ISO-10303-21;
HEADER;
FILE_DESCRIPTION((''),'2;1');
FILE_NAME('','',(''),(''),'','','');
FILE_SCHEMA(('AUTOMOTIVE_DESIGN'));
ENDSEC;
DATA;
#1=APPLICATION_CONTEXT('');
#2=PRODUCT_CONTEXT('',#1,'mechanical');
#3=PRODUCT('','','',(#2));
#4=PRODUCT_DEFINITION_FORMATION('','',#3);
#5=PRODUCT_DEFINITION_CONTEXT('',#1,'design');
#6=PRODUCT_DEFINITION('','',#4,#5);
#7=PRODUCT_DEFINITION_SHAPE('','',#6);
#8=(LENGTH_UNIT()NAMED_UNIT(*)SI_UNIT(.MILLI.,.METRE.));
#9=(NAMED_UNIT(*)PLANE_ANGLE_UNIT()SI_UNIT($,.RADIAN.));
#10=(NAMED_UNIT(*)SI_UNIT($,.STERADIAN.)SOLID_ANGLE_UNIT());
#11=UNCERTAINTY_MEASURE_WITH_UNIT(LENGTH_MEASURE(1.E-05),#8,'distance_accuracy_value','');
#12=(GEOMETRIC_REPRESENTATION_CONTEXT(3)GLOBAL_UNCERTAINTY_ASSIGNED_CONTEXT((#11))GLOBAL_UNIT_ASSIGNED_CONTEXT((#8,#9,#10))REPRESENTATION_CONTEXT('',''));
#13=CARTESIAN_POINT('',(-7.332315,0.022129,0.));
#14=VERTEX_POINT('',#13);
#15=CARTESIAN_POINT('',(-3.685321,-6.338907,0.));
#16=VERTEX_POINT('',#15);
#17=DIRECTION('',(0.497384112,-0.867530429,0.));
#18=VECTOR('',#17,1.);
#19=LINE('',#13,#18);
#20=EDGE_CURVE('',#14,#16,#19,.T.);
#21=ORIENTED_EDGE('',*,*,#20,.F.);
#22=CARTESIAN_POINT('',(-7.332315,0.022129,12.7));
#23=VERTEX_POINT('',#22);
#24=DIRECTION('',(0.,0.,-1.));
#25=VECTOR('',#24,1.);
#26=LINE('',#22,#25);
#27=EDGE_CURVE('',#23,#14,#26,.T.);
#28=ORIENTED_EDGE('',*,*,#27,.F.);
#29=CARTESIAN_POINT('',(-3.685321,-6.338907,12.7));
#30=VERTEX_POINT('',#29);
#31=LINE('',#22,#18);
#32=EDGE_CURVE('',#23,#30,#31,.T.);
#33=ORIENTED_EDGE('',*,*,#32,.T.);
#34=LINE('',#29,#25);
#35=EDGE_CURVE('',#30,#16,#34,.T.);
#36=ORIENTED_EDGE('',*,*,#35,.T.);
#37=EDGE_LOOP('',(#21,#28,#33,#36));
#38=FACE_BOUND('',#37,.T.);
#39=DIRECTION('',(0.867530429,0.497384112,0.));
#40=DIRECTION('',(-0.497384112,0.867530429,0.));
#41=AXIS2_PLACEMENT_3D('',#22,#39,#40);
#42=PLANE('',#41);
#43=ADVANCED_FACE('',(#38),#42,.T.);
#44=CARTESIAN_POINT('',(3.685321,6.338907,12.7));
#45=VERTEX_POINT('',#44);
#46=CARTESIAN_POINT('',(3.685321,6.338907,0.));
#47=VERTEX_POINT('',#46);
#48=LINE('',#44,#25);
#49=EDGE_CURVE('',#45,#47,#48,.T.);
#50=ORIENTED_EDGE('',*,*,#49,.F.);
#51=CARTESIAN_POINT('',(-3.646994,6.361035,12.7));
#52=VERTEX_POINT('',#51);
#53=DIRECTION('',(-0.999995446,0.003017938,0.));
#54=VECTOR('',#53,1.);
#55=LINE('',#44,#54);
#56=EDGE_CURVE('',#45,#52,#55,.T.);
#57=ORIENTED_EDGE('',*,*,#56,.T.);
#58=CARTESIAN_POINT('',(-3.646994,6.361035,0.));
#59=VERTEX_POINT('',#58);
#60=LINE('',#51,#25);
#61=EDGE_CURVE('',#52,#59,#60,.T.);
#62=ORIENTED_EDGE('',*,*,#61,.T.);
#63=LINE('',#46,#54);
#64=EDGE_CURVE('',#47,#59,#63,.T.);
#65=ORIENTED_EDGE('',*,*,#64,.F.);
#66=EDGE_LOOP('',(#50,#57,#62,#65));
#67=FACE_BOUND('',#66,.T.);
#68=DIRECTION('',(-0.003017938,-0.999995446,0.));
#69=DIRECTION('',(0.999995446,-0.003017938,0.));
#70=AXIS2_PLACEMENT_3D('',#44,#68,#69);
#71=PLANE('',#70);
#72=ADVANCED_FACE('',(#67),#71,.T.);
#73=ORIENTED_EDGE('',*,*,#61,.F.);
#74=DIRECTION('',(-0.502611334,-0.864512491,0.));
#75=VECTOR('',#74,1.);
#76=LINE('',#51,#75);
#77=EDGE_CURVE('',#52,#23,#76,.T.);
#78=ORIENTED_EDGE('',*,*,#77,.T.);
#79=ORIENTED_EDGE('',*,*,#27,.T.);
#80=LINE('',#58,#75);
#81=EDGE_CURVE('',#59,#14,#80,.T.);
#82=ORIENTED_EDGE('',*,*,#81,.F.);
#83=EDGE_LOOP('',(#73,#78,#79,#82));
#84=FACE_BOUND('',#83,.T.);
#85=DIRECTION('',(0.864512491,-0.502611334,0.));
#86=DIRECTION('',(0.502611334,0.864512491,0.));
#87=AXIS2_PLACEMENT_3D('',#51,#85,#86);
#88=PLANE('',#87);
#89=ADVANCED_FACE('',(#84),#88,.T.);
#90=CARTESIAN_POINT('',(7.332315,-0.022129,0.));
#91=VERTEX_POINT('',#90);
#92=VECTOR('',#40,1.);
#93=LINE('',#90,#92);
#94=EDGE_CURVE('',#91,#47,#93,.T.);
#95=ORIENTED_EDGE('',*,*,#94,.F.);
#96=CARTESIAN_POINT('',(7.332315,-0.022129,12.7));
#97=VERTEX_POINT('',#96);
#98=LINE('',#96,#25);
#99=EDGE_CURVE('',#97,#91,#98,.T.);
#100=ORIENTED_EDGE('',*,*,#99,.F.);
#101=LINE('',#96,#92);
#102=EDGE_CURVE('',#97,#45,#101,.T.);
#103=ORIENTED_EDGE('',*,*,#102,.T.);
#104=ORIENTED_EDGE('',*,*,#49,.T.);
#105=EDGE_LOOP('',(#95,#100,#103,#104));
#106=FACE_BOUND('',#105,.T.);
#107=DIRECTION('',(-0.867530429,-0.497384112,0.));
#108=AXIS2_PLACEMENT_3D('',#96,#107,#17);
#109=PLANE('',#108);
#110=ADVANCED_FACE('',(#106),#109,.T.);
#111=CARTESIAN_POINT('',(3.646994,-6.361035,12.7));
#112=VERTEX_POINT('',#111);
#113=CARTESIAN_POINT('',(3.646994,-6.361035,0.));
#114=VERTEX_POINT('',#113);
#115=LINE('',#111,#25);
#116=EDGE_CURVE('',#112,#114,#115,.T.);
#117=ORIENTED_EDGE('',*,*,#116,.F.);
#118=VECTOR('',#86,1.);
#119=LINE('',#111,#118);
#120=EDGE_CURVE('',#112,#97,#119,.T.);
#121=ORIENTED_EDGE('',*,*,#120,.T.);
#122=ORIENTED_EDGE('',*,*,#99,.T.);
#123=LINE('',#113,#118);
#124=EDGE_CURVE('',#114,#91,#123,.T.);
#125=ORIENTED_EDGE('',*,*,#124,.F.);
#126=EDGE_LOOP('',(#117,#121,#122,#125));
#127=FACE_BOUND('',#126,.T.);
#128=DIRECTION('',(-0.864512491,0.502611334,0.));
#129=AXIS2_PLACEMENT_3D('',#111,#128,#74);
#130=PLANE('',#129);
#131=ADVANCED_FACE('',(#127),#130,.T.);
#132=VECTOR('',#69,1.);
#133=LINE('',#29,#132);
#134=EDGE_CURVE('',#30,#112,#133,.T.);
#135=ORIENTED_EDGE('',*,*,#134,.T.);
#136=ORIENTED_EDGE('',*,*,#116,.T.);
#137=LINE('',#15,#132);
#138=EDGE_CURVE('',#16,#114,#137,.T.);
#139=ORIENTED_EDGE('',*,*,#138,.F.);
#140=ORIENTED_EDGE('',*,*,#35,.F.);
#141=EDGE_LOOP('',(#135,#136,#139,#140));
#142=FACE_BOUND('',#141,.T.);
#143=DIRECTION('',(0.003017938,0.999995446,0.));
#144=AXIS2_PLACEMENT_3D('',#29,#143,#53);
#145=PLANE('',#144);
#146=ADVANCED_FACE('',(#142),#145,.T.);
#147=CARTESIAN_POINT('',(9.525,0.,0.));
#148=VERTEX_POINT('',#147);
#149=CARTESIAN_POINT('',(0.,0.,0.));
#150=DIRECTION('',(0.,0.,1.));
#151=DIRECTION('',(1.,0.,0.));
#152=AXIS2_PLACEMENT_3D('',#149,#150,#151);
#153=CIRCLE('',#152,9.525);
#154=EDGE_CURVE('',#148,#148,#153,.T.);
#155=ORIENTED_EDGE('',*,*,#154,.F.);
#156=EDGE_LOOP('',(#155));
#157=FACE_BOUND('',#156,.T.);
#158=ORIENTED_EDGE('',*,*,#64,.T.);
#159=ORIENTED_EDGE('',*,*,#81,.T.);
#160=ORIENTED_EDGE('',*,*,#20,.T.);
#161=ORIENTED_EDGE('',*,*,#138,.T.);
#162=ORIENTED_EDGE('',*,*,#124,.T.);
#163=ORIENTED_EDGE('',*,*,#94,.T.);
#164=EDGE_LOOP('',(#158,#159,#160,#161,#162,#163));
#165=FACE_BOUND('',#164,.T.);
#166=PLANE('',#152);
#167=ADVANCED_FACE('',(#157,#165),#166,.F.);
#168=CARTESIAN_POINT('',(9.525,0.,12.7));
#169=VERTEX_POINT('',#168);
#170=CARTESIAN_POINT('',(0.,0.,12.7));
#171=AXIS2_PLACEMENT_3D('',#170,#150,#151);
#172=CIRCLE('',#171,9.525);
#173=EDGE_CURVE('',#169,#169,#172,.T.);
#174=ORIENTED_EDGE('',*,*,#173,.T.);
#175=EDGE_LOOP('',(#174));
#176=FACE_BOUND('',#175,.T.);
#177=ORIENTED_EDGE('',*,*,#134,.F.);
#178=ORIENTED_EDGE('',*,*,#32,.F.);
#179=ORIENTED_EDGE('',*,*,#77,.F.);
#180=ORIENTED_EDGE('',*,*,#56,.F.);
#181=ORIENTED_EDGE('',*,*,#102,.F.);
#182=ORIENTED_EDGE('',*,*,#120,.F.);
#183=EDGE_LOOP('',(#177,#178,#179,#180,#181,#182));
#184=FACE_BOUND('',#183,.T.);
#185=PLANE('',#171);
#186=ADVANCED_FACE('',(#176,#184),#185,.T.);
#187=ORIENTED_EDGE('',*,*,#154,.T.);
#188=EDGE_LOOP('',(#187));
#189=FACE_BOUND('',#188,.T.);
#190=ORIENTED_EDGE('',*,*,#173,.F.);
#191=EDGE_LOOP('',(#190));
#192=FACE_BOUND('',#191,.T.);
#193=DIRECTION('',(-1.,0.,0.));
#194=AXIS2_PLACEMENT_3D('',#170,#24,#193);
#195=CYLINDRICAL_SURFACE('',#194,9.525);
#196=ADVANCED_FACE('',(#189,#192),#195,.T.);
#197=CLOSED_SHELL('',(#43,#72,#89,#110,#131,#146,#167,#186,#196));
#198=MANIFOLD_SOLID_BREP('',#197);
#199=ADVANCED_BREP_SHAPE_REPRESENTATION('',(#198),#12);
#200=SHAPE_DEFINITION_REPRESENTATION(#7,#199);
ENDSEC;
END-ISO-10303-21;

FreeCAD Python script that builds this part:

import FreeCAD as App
import Part
import Sketcher
Q = App.Units.Quantity


def add_polygon(sketch, points):
    """Adds a closed chain of lines whose ends are joined by coincident constraints."""
    first, n = sketch.GeometryCount, len(points)
    for a, b in zip(points, points[1:] + points[:1]):
        sketch.addGeometry(Part.LineSegment(App.Vector(*a, 0), App.Vector(*b, 0)), False)
    for i in range(n):
        sketch.addConstraint(Sketcher.Constraint("Coincident", first + i, 2, first + (i + 1) % n, 1))

doc = App.newDocument("Part")
body = doc.addObject("PartDesign::Body", "Body")

# Sketch on XY plane
sketch1 = body.newObject("Sketcher::SketchObject", "Sketch")
sketch1.AttachmentSupport = (doc.getObject("XY_Plane"), [""])
sketch1.MapMode = "FlatFace"
sketch1.addGeometry(Part.Circle(App.Vector(0, 0, 0), App.Vector(0, 0, 1), 9.525), False)  # 0
add_polygon(sketch1, [(7.332315, -0.022129), (3.646994, -6.361035), (-3.685321, -6.338907), (-7.332315, 0.022129), (-3.646994, 6.361035), (3.685321, 6.338907)])  # lines 1-6
sketch1.addConstraint([
    Sketcher.Constraint("Coincident", 0, 3, -1, 1),
    Sketcher.Constraint("Diameter", 0, Q("0.75 in")),
    Sketcher.Constraint("Distance", 1, Q("7.332348 mm")),
    Sketcher.Constraint("Distance", 2, Q("7.332348 mm")),
    Sketcher.Constraint("Distance", 3, Q("7.332348 mm")),
    Sketcher.Constraint("Distance", 4, Q("7.332348 mm")),
    Sketcher.Constraint("Distance", 5, Q("7.332348 mm")),
    Sketcher.Constraint("Distance", 6, Q("7.332348 mm")),
    Sketcher.Constraint("DistanceX", 2, 2, -1, 1, Q("3.685321 mm")),
    Sketcher.Constraint("DistanceY", -1, 1, 3, 2, Q("0.022129 mm")),
    Sketcher.Constraint("DistanceX", -1, 1, 5, 2, Q("3.685321 mm")),
    Sketcher.Constraint("DistanceY", 6, 2, -1, 1, Q("0.022129 mm")),
    Sketcher.Constraint("DistanceY", 1, 2, 2, 2, Q("0.022129 mm")),
    Sketcher.Constraint("DistanceX", 3, 2, 1, 2, Q("10.979309 mm")),
])
pad1 = body.newObject("PartDesign::Pad", "Pad")
pad1.Profile = sketch1
pad1.Length = Q("0.5 in")

doc.recompute()
